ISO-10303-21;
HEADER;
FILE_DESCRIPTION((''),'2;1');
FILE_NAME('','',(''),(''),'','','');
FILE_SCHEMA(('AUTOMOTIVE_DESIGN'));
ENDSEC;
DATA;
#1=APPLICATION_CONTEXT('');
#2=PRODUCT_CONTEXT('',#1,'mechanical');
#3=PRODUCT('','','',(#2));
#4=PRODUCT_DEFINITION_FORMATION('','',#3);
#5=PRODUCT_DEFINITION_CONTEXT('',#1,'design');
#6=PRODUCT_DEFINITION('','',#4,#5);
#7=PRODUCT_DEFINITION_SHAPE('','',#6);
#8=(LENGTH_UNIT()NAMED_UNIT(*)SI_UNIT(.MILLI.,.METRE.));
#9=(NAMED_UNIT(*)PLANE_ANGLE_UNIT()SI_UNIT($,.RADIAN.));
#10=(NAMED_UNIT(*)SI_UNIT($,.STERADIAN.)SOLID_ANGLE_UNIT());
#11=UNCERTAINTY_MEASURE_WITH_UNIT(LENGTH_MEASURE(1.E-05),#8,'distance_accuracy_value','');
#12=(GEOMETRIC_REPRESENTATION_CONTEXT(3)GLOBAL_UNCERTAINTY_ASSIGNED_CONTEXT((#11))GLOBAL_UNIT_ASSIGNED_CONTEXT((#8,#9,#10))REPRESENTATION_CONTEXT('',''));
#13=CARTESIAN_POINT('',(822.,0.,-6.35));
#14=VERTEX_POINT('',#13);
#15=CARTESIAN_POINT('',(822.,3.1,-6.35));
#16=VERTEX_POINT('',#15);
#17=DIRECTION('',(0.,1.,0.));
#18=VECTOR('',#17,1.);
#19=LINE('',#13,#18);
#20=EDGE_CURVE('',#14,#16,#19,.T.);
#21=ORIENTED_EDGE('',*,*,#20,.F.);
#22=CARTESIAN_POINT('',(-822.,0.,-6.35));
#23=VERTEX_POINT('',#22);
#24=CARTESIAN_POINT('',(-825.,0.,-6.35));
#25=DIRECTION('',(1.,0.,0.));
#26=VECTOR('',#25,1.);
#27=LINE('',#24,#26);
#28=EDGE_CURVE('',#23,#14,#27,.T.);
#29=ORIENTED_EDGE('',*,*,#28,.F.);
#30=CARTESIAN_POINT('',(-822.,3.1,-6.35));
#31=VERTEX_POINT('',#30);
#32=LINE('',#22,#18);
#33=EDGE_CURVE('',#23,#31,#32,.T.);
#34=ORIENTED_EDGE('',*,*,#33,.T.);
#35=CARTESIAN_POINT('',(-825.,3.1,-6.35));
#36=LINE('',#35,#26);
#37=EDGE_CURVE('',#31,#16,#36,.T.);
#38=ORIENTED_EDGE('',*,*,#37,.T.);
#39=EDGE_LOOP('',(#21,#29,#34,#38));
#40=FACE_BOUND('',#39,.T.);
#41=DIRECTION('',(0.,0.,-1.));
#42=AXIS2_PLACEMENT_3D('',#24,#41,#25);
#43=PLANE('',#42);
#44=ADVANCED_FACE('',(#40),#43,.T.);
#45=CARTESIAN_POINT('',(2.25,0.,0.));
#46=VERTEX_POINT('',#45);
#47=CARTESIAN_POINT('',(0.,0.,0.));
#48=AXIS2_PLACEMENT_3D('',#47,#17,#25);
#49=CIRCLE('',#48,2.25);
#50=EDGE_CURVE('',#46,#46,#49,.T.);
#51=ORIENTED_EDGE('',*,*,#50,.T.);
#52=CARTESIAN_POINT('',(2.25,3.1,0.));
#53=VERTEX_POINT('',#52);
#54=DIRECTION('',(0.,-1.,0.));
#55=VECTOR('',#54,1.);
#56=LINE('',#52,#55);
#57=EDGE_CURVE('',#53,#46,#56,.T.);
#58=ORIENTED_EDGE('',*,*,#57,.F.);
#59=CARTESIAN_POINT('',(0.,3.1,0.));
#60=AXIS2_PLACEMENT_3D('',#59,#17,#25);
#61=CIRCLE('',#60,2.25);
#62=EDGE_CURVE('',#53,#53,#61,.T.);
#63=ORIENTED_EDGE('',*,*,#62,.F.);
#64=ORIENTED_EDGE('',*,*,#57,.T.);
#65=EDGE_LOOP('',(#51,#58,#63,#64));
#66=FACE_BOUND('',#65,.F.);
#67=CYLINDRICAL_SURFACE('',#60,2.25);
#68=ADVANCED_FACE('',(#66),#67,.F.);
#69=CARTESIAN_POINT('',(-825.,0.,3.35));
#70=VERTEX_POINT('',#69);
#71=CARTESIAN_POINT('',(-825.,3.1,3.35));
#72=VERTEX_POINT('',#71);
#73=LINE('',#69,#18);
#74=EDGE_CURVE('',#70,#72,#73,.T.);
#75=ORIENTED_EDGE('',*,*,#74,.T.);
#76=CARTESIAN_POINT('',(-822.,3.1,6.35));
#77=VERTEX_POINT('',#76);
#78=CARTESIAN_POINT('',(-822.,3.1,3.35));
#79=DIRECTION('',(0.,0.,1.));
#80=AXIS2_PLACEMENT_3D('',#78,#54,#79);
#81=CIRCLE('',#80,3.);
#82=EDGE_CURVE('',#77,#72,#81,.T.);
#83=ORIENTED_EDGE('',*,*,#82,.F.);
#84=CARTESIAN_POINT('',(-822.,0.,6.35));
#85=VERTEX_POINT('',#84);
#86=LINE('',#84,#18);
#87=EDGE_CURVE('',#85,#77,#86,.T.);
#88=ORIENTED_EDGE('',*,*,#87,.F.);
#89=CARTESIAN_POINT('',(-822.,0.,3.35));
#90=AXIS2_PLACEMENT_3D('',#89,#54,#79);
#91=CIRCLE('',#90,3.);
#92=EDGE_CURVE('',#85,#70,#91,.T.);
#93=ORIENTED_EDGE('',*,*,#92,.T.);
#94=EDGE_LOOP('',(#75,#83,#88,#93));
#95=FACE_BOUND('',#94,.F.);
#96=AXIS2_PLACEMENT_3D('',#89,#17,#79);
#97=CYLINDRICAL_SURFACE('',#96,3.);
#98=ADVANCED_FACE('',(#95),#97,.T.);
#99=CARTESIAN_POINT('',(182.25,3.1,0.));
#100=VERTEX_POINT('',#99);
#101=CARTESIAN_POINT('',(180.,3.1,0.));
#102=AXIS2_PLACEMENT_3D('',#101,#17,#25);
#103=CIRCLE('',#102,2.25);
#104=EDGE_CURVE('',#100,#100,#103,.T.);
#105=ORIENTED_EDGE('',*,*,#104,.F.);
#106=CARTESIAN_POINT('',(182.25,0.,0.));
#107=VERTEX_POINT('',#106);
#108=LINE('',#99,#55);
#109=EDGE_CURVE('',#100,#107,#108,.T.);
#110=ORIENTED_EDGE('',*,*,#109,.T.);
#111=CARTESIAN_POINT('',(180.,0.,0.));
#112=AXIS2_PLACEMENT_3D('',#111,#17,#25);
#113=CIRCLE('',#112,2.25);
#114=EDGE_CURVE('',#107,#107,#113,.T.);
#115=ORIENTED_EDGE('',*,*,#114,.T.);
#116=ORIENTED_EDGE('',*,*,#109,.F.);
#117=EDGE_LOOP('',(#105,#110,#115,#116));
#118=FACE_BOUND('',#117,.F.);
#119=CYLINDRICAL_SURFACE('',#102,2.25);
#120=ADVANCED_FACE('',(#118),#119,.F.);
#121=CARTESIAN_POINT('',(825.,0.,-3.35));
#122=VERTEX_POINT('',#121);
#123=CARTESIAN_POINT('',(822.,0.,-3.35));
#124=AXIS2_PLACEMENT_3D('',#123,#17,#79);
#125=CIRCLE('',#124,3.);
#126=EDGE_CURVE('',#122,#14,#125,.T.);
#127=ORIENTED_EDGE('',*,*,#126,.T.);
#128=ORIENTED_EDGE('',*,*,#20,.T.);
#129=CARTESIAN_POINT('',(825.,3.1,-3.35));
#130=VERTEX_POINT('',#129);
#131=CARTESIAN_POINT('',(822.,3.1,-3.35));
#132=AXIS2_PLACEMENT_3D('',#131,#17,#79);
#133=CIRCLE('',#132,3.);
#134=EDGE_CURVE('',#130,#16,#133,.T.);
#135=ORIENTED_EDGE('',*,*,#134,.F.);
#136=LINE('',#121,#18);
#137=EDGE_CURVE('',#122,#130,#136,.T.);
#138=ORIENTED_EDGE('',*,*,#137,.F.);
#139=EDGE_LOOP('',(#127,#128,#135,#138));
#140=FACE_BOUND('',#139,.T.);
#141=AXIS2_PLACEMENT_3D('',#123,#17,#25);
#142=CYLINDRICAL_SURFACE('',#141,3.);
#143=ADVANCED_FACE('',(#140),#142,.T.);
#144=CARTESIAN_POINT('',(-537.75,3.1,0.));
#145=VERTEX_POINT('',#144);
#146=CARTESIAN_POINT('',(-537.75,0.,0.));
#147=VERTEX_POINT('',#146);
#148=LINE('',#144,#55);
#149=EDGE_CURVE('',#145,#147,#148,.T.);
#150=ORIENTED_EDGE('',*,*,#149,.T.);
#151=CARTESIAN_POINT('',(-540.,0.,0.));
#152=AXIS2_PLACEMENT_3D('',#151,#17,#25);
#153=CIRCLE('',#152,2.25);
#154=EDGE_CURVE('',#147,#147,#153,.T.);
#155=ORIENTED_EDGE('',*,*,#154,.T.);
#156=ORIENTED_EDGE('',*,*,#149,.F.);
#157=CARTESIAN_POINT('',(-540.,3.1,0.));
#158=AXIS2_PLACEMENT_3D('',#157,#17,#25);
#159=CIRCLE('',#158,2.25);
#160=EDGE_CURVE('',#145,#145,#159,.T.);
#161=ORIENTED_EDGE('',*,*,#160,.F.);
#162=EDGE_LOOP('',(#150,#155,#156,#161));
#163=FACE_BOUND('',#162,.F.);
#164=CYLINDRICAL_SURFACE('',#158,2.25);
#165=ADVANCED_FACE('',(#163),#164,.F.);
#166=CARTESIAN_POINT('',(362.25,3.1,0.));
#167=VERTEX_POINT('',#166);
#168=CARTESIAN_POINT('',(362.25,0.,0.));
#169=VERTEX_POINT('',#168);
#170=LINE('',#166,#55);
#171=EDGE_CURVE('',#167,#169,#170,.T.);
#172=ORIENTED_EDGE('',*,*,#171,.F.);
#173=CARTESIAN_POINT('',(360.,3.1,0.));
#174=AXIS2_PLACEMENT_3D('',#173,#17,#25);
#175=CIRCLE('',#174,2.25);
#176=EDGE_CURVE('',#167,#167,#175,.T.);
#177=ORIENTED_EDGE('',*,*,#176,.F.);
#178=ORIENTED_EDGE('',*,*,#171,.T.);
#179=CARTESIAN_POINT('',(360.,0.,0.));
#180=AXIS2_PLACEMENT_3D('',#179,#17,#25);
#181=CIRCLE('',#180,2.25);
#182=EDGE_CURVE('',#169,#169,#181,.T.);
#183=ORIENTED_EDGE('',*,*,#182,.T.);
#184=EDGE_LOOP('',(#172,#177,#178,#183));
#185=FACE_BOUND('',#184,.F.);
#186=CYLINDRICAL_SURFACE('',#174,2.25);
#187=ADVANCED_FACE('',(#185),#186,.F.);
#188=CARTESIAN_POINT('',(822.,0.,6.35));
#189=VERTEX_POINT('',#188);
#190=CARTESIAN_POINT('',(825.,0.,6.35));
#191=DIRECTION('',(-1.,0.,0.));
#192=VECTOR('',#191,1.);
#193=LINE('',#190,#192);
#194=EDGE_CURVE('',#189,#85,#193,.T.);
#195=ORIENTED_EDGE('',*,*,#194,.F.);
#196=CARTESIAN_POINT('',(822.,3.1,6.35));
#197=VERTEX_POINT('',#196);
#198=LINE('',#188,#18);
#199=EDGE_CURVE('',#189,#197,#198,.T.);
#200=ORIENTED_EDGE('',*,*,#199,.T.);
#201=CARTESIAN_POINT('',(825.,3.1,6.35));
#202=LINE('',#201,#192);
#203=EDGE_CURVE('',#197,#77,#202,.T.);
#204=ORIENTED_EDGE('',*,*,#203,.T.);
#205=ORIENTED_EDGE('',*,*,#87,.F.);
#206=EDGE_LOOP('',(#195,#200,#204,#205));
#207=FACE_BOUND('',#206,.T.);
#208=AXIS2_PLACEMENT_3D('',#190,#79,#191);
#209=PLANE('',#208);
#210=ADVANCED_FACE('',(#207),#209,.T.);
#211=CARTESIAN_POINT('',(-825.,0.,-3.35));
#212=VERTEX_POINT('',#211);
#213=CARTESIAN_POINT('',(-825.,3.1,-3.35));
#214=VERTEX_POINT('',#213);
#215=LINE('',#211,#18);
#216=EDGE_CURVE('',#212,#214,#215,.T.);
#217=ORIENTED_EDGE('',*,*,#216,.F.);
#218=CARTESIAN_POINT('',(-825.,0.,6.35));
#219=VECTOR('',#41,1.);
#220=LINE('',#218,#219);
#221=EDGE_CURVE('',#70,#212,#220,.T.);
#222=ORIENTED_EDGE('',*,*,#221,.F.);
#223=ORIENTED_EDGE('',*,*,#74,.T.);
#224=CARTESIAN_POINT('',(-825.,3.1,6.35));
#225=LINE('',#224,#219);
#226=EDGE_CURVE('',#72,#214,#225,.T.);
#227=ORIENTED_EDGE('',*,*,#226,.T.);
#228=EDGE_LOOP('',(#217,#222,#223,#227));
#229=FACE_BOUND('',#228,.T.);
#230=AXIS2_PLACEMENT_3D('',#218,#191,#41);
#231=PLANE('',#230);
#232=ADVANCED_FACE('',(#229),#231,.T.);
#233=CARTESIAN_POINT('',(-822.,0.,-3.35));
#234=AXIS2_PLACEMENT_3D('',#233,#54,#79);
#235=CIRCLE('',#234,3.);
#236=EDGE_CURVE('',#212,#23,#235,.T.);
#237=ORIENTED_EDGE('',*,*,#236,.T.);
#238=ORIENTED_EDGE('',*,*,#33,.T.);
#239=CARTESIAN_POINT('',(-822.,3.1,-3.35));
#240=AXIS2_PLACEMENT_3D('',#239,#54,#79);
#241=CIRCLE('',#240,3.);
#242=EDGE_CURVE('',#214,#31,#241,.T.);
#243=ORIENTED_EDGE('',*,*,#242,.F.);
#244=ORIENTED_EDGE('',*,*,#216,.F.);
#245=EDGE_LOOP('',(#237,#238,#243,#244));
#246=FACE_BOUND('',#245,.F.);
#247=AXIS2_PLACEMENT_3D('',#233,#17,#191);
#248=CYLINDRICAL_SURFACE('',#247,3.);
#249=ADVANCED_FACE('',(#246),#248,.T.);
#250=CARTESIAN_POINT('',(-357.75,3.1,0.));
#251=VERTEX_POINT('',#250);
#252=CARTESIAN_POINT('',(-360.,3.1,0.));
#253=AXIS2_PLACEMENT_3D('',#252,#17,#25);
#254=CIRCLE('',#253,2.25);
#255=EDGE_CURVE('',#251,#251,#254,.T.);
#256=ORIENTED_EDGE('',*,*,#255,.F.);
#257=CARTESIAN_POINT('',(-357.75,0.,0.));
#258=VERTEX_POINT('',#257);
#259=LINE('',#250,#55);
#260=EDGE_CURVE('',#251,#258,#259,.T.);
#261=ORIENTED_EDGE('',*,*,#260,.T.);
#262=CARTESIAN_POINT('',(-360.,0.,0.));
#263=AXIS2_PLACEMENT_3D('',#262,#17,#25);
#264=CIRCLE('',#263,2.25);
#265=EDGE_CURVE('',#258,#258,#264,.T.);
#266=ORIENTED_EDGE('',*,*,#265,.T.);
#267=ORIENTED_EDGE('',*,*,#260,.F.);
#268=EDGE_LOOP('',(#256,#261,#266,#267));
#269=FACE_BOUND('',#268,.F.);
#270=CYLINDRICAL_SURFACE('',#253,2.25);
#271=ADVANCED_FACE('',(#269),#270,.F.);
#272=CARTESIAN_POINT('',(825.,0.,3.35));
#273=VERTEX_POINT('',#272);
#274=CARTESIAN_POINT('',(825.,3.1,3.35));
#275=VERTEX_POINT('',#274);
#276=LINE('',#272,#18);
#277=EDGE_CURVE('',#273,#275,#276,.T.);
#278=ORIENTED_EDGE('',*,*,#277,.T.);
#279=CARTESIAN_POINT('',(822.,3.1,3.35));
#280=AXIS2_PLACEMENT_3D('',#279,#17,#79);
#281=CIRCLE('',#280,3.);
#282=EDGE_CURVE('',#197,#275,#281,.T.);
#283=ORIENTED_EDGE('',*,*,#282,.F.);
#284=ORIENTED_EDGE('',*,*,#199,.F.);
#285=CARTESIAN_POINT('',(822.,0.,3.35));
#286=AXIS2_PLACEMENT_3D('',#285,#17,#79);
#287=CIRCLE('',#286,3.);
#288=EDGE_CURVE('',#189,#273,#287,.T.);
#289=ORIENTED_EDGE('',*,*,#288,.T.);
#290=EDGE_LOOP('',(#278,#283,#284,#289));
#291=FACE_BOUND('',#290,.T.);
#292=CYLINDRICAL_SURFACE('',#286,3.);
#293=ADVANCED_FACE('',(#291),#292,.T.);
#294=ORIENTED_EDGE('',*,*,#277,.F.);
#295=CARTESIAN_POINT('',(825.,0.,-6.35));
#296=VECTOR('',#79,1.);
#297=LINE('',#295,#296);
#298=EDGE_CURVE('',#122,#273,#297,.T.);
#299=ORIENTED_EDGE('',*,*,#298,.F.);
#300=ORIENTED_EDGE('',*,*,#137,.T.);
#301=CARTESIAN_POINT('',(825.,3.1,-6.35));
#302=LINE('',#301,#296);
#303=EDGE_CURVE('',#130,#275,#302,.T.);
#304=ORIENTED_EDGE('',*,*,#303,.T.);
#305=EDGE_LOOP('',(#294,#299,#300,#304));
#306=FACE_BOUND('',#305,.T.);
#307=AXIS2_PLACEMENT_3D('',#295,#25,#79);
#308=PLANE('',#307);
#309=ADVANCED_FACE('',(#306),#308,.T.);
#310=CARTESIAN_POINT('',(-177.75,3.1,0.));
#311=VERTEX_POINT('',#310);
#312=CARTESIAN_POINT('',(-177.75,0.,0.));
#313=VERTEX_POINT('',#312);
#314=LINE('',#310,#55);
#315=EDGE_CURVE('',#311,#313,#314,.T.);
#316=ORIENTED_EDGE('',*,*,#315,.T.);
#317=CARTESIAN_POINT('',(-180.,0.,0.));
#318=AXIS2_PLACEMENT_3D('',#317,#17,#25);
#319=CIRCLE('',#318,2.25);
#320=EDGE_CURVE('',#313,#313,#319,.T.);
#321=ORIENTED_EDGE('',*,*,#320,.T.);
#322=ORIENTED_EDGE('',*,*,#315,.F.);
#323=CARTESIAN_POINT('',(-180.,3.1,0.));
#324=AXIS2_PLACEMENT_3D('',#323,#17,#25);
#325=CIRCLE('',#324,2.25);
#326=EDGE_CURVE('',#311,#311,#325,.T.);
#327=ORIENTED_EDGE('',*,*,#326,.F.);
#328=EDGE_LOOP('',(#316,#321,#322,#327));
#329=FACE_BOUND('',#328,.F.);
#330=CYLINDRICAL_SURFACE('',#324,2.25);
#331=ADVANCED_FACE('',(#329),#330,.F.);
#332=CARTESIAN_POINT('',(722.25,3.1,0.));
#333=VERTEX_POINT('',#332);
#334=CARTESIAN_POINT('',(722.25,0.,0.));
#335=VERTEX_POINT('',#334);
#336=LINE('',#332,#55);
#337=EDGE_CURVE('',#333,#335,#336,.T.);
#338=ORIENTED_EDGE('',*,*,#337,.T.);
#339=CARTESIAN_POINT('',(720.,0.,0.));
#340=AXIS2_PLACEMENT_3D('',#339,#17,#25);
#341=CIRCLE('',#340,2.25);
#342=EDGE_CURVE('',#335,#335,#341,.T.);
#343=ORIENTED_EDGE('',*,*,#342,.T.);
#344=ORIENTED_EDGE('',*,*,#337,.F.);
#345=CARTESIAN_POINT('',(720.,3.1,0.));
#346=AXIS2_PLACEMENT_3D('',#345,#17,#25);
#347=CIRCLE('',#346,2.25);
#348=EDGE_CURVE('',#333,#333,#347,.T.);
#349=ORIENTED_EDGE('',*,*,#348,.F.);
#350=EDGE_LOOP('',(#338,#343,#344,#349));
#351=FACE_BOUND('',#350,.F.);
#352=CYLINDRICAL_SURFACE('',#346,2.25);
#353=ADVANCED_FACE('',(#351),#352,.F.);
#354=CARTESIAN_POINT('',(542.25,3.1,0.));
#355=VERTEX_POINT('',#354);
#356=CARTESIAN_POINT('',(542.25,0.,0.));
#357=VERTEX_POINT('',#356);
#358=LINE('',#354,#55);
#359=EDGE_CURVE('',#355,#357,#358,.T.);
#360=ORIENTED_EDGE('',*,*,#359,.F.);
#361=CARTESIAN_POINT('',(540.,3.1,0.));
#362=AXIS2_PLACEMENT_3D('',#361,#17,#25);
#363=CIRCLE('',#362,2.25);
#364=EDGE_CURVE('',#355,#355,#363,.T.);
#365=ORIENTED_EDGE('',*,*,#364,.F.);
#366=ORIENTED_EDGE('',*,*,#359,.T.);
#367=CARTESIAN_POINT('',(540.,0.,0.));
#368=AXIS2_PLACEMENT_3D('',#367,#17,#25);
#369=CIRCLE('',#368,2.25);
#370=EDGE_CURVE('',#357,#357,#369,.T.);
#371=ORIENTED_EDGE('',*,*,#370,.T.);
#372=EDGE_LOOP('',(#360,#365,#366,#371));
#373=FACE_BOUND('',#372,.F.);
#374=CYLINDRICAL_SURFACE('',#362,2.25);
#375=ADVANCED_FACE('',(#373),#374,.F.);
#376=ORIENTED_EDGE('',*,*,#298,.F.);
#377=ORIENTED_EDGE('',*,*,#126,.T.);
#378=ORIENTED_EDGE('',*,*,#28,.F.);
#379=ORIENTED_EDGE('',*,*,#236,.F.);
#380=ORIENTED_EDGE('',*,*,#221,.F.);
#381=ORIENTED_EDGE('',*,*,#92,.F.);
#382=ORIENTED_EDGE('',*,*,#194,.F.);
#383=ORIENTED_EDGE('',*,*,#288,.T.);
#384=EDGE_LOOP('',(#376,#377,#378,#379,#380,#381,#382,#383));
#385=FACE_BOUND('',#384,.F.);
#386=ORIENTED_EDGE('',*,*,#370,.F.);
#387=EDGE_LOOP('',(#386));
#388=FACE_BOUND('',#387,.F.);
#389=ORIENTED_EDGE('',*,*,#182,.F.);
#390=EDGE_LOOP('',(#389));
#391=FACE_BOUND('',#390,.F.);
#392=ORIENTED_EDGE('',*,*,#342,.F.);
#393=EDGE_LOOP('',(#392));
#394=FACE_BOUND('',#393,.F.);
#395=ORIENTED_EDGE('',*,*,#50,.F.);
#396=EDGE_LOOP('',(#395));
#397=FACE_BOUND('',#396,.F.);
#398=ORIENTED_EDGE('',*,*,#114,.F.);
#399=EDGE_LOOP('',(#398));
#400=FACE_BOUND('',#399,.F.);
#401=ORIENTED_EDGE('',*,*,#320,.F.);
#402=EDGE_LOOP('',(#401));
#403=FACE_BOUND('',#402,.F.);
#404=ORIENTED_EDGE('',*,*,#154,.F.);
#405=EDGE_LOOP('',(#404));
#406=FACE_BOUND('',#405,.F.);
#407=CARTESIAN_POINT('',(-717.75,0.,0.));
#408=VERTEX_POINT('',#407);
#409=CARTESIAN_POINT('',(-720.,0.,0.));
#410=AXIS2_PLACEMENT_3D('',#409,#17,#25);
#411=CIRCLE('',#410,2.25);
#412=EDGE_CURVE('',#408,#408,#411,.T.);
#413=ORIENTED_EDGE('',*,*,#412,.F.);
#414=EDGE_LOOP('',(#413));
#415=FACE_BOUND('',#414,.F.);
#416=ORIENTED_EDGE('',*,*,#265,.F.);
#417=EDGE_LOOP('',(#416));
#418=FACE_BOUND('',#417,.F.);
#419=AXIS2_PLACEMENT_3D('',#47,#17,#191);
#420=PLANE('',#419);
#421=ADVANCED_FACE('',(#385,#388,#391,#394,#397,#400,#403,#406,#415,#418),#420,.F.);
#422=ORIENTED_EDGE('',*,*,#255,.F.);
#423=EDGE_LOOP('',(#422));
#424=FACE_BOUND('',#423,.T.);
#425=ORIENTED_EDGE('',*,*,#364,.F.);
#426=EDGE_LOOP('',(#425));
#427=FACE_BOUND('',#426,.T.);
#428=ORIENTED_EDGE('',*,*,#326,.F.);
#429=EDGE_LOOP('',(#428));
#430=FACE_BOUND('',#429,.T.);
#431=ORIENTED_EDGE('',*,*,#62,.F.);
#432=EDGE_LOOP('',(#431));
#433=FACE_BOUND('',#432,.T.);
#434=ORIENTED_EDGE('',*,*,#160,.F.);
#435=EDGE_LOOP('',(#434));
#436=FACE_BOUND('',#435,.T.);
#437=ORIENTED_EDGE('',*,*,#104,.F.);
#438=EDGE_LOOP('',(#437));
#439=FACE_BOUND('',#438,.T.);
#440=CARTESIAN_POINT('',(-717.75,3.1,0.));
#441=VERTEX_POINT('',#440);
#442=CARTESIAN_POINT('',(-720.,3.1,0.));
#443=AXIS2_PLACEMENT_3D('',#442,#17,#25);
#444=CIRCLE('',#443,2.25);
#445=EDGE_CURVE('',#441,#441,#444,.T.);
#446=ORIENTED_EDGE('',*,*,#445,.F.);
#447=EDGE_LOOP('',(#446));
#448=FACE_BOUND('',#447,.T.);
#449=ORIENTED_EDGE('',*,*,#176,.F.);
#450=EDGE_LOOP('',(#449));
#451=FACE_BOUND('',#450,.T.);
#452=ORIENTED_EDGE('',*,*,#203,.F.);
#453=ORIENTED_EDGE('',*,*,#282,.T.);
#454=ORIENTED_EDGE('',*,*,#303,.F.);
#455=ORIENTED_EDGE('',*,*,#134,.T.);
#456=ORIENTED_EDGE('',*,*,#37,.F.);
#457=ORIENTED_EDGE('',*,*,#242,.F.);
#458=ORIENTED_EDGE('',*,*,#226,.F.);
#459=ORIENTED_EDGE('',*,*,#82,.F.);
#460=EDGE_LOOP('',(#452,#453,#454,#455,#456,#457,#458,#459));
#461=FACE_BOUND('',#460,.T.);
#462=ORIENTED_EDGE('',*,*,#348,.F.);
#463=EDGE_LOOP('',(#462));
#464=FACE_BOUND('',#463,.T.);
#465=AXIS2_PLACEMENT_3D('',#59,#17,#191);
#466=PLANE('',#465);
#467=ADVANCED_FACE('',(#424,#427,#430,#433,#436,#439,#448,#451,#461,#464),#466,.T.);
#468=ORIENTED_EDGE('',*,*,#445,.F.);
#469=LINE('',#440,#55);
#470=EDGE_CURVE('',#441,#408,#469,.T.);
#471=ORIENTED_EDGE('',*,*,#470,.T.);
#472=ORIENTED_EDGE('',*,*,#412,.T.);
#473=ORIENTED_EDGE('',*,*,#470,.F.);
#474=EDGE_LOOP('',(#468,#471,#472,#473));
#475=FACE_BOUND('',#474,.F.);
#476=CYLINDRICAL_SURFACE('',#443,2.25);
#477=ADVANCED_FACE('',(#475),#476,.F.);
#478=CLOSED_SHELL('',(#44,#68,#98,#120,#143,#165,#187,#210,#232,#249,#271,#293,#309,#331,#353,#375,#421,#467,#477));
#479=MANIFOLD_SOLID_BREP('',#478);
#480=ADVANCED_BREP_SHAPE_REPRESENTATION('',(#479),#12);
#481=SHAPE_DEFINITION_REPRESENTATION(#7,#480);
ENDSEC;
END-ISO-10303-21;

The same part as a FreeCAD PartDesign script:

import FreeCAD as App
import Part
import Sketcher
Q = App.Units.Quantity


def edges_at(feature, points):
    """Names of the edges that pass closest to the given points."""
    edges = feature.Shape.Edges
    near = lambda p: min(range(len(edges)), key=lambda i: edges[i].distToShape(Part.Vertex(*p))[0])
    return sorted({f"Edge{near(p) + 1}" for p in points})

doc = App.newDocument("Part")
body = doc.addObject("PartDesign::Body", "Body")

sketch1 = body.newObject("Sketcher::SketchObject", "Sketch")
sketch1.AttachmentSupport = (doc.getObject("XZ_Plane"), [""])
sketch1.MapMode = "FlatFace"
sketch1.addGeometry([
    Part.LineSegment(App.Vector(-825, 6, 0), App.Vector(825, 6, 0)),
    Part.LineSegment(App.Vector(825, 6, 0), App.Vector(825, -6, 0)),
    Part.LineSegment(App.Vector(825, -6, 0), App.Vector(-825, -6, 0)),
    Part.LineSegment(App.Vector(-825, -6, 0), App.Vector(-825, 6, 0)),
], False)
sketch1.addConstraint([
    Sketcher.Constraint("Coincident", 0, 2, 1, 1),
    Sketcher.Constraint("Coincident", 1, 2, 2, 1),
    Sketcher.Constraint("Coincident", 2, 2, 3, 1),
    Sketcher.Constraint("Coincident", 3, 2, 0, 1),
    Sketcher.Constraint("Horizontal", 0),
    Sketcher.Constraint("Vertical", 1),
    Sketcher.Constraint("Horizontal", 2),
    Sketcher.Constraint("Vertical", 3),
    Sketcher.Constraint("Symmetric", 0, 2, 2, 2, -1, 1),
    Sketcher.Constraint("DistanceX", 0, 1, 0, 2, Q("1650 mm")),
    Sketcher.Constraint("DistanceY", 1, 2, 1, 1, Q("12.7 mm")),
])
pad1 = body.newObject("PartDesign::Pad", "Pad")
pad1.Profile = sketch1
pad1.Length = 3.1
pad1.Reversed = True

sketch2 = body.newObject("Sketcher::SketchObject", "Sketch001")
sketch2.AttachmentSupport = (doc.getObject("XZ_Plane"), [""])
sketch2.MapMode = "FlatFace"
sketch2.AttachmentOffset = App.Placement(App.Vector(0, 0, -3.1), App.Rotation())
sketch2.addGeometry(Part.Circle(App.Vector(0, 0, 0), App.Vector(0, 0, 1), 2.2), False)
sketch2.addConstraint([
    Sketcher.Constraint("Coincident", 0, 3, -1, 1),
    Sketcher.Constraint("Diameter", 0, Q("4.5 mm")),
])
pocket1 = body.newObject("PartDesign::Pocket", "Pocket")
pocket1.Profile = sketch2
pocket1.Length = 3.1
pocket1.Reversed = True

sketch3 = body.newObject("Sketcher::SketchObject", "Sketch002")
sketch3.AttachmentSupport = (doc.getObject("XZ_Plane"), [""])
sketch3.MapMode = "FlatFace"
sketch3.AttachmentOffset = App.Placement(App.Vector(0, 0, -3.1), App.Rotation())
sketch3.addGeometry([
    Part.Circle(App.Vector(0, 0, 0), App.Vector(0, 0, 1), 2.2),
    Part.Circle(App.Vector(180, 0, 0), App.Vector(0, 0, 1), 2.2),
    Part.Circle(App.Vector(360, 0, 0), App.Vector(0, 0, 1), 2.2),
    Part.Circle(App.Vector(540, 0, 0), App.Vector(0, 0, 1), 2.2),
    Part.Circle(App.Vector(720, 0, 0), App.Vector(0, 0, 1), 2.2),
    Part.Circle(App.Vector(-180, 0, 0), App.Vector(0, 0, 1), 2.2),
    Part.Circle(App.Vector(-360, 0, 0), App.Vector(0, 0, 1), 2.2),
    Part.Circle(App.Vector(-540, 0, 0), App.Vector(0, 0, 1), 2.2),
    Part.Circle(App.Vector(-720, 0, 0), App.Vector(0, 0, 1), 2.2),
], False)
sketch3.addConstraint([
    Sketcher.Constraint("Coincident", 0, 3, -1, 1),
    Sketcher.Constraint("Equal", 0, 1),
    Sketcher.Constraint("Equal", 1, 2),
    Sketcher.Constraint("Equal", 2, 3),
    Sketcher.Constraint("Equal", 3, 4),
    Sketcher.Constraint("Equal", 4, 5),
    Sketcher.Constraint("Equal", 5, 6),
    Sketcher.Constraint("Equal", 6, 7),
    Sketcher.Constraint("Equal", 7, 8),
    Sketcher.Constraint("Symmetric", 1, 3, 5, 3, -1, 1),
    Sketcher.Constraint("Symmetric", 2, 3, 6, 3, -1, 1),
    Sketcher.Constraint("Symmetric", 3, 3, 7, 3, -1, 1),
    Sketcher.Constraint("Symmetric", 4, 3, 8, 3, -1, 1),
    Sketcher.Constraint("PointOnObject", 1, 3, -1),
    Sketcher.Constraint("PointOnObject", 2, 3, -1),
    Sketcher.Constraint("PointOnObject", 3, 3, -1),
    Sketcher.Constraint("PointOnObject", 4, 3, -1),
    Sketcher.Constraint("DistanceX", -1, 1, 1, 3, Q("180 mm")),
    Sketcher.Constraint("DistanceX", 1, 3, 2, 3, Q("180 mm")),
    Sketcher.Constraint("DistanceX", 2, 3, 3, 3, Q("180 mm")),
    Sketcher.Constraint("DistanceX", 3, 3, 4, 3, Q("180 mm")),
    Sketcher.Constraint("Diameter", 0, Q("4.5 mm")),
])
pocket2 = body.newObject("PartDesign::Pocket", "Pocket001")
pocket2.Profile = sketch3
pocket2.Length = 180
pocket2.Reversed = True
doc.recompute()

fillet = body.newObject("PartDesign::Fillet", "Fillet")
fillet.Base = (pocket2, edges_at(pocket2, [
    (825, 1.55, 6.35),
    (825, 1.55, -6.35),
    (-825, 1.55, -6.35),
    (-825, 1.55, 6.35),
]))
fillet.Radius = 3

doc.recompute()
